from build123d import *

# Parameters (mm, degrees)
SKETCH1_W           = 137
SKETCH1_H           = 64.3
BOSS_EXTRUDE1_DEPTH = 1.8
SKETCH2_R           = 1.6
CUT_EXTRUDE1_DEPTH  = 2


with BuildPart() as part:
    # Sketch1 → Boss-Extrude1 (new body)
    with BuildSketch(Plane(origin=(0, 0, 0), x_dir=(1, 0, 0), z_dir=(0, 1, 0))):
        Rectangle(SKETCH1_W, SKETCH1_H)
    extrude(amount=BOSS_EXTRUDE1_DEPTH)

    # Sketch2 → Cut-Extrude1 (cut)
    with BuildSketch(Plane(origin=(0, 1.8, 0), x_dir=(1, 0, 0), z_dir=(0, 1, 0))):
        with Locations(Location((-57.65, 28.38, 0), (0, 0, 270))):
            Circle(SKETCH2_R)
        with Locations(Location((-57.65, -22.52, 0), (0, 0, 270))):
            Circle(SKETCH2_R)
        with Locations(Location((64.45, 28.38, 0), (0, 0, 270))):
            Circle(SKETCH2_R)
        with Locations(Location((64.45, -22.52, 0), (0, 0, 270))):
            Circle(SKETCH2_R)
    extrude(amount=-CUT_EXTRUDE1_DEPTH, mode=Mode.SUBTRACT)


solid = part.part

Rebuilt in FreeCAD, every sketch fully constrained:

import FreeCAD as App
import Part
import Sketcher

V = App.Vector


def add_polygon(sketch, points):
    """Adds a closed chain of lines whose ends are joined by coincident constraints."""
    first, n = sketch.GeometryCount, len(points)
    for a, b in zip(points, points[1:] + points[:1]):
        sketch.addGeometry(Part.LineSegment(App.Vector(*a, 0), App.Vector(*b, 0)), False)
    for i in range(n):
        sketch.addConstraint(Sketcher.Constraint("Coincident", first + i, 2, first + (i + 1) % n, 1))

doc = App.newDocument("Part")
body = doc.addObject("PartDesign::Body", "Body")

# Sketch on XZ plane
sketch1 = body.newObject("Sketcher::SketchObject", "Sketch")
sketch1.AttachmentSupport = (doc.getObject("XZ_Plane"), [""])
sketch1.MapMode = "FlatFace"
add_polygon(sketch1, [(-68, -32), (-68, 32), (68, 32), (68, -32)])  # lines 0-3
sketch1.addConstraint(Sketcher.Constraint("Vertical", 0))
sketch1.addConstraint(Sketcher.Constraint("Horizontal", 1))
sketch1.addConstraint(Sketcher.Constraint("Vertical", 2))
sketch1.addConstraint(Sketcher.Constraint("Horizontal", 3))
sketch1.addConstraint(Sketcher.Constraint("Symmetric", 0, 2, 2, 2, -1, 1))
sketch1.addConstraint(Sketcher.Constraint("DistanceX", 1, 1, 1, 2, 137.0))
sketch1.addConstraint(Sketcher.Constraint("DistanceY", 0, 1, 0, 2, 64.3))
pad1 = body.newObject("PartDesign::Pad", "Pad")
pad1.Profile = sketch1
pad1.Length = 1.8
pad1.Reversed = True

# Sketch on XZ plane
sketch2 = body.newObject("Sketcher::SketchObject", "Sketch001")
sketch2.AttachmentSupport = (doc.getObject("XZ_Plane"), [""])
sketch2.MapMode = "FlatFace"
sketch2.AttachmentOffset = App.Placement(V(0, 0, -1.8), App.Rotation())
sketch2.addGeometry(Part.Circle(V(-57.6, -28.4, 0), V(0, 0, 1), 1.6), False)
sketch2.addGeometry(Part.Circle(V(-57.6, 22.5, 0), V(0, 0, 1), 1.6), False)
sketch2.addGeometry(Part.Circle(V(64.5, -28.4, 0), V(0, 0, 1), 1.6), False)
sketch2.addGeometry(Part.Circle(V(64.5, 22.5, 0), V(0, 0, 1), 1.6), False)
sketch2.addConstraint(Sketcher.Constraint("Equal", 0, 1))
sketch2.addConstraint(Sketcher.Constraint("Equal", 1, 2))
sketch2.addConstraint(Sketcher.Constraint("Equal", 2, 3))
sketch2.addConstraint(Sketcher.Constraint("Horizontal", 0, 3, 2, 3))
sketch2.addConstraint(Sketcher.Constraint("Horizontal", 1, 3, 3, 3))
sketch2.addConstraint(Sketcher.Constraint("Vertical", 0, 3, 1, 3))
sketch2.addConstraint(Sketcher.Constraint("Vertical", 2, 3, 3, 3))
sketch2.addConstraint(Sketcher.Constraint("Diameter", 0, 3.2))
sketch2.addConstraint(Sketcher.Constraint("DistanceY", 0, 3, 1, 3, 50.9))
sketch2.addConstraint(Sketcher.Constraint("DistanceX", 0, 3, 2, 3, 122.1))
sketch2.addConstraint(Sketcher.Constraint("DistanceX", 0, 3, -1, 1, 57.65))
sketch2.addConstraint(Sketcher.Constraint("DistanceY", 0, 3, -1, 1, 28.38))
pocket1 = body.newObject("PartDesign::Pocket", "Pocket")
pocket1.Profile = sketch2
pocket1.Length = 2
pocket1.Reversed = True

doc.recompute()
